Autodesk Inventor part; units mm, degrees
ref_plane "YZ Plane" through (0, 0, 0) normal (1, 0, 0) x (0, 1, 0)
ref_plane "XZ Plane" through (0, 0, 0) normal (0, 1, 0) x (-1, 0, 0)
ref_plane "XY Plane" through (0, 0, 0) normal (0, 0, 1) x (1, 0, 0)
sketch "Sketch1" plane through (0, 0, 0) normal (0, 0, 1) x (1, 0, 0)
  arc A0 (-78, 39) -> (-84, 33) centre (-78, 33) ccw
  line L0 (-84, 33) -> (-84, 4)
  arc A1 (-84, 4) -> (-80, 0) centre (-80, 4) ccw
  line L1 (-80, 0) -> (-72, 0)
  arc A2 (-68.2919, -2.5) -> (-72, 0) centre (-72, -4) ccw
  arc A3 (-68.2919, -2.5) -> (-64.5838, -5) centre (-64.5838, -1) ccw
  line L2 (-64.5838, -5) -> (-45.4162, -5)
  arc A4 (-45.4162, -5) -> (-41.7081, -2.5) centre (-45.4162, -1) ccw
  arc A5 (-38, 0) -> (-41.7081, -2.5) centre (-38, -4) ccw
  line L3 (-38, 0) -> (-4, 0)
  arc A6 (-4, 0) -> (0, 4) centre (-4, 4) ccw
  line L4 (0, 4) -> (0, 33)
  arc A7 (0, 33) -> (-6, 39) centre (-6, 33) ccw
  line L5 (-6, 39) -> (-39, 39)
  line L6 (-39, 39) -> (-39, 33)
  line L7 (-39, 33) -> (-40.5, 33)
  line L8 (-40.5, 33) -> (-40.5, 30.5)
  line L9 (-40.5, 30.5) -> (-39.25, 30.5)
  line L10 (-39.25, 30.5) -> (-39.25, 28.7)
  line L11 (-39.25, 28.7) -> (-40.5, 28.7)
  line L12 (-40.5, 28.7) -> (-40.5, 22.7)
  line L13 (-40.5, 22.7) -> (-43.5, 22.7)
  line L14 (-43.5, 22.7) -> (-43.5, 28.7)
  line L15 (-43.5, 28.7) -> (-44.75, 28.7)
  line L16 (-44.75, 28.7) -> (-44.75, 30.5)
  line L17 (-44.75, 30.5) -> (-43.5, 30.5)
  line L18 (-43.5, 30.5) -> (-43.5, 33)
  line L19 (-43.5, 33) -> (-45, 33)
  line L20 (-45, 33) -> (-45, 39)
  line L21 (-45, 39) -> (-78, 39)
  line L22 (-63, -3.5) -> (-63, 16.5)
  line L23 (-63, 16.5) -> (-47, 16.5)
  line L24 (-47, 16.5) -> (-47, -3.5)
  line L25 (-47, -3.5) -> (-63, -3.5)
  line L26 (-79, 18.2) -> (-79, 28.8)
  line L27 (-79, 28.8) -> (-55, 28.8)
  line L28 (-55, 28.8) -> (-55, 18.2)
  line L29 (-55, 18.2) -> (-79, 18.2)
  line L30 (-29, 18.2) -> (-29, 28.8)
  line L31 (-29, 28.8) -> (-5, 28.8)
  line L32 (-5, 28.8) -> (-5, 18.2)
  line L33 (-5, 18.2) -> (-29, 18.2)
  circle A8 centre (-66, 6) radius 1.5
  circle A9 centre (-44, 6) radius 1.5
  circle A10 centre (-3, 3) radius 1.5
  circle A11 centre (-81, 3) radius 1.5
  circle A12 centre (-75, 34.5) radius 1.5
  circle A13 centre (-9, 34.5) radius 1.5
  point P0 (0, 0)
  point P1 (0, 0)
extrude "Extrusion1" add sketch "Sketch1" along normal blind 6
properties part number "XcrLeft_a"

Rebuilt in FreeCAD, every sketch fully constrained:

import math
import FreeCAD as App
import Part
import Sketcher
from FreeCAD import Vector


def add_polygon(sketch, points):
    """Adds a closed chain of lines whose ends are joined by coincident constraints."""
    first, n = sketch.GeometryCount, len(points)
    for a, b in zip(points, points[1:] + points[:1]):
        sketch.addGeometry(Part.LineSegment(App.Vector(*a, 0), App.Vector(*b, 0)), False)
    for i in range(n):
        sketch.addConstraint(Sketcher.Constraint("Coincident", first + i, 2, first + (i + 1) % n, 1))

doc = App.newDocument("Part")
body = doc.addObject("PartDesign::Body", "Body")

# Sketch on XY plane
sketch1 = doc.addObject("Sketcher::SketchObject", "Sketch")
body.addObject(sketch1)
sketch1.AttachmentSupport = (doc.XY_Plane, [""])
sketch1.MapMode = "FlatFace"
sketch1.addGeometry(Part.LineSegment(Vector(-45, 39, 0), Vector(-78, 39, 0)), False)  # 0
sketch1.addGeometry(Part.ArcOfCircle(Part.Circle(Vector(-78, 33, 0), Vector(0, 0, 1), 6), math.radians(90), math.radians(180)), False)  # 1
sketch1.addGeometry(Part.LineSegment(Vector(-84, 33, 0), Vector(-84, 4, 0)), False)  # 2
sketch1.addGeometry(Part.ArcOfCircle(Part.Circle(Vector(-80, 4, 0), Vector(0, 0, 1), 4), math.radians(180), math.radians(270)), False)  # 3
sketch1.addGeometry(Part.LineSegment(Vector(-80, 0, 0), Vector(-72, 0, 0)), False)  # 4
sketch1.addGeometry(Part.ArcOfCircle(Part.Circle(Vector(-72, -4, 0), Vector(0, 0, 1), 4), math.radians(22), math.radians(90)), False)  # 5
sketch1.addGeometry(Part.ArcOfCircle(Part.Circle(Vector(-64.6, -1, 0), Vector(0, 0, 1), 4), math.radians(-158), math.radians(-90)), False)  # 6
sketch1.addGeometry(Part.LineSegment(Vector(-64.6, -5, 0), Vector(-45.4, -5, 0)), False)  # 7
sketch1.addGeometry(Part.ArcOfCircle(Part.Circle(Vector(-45.4, -1, 0), Vector(0, 0, 1), 4), math.radians(-90), math.radians(-22)), False)  # 8
sketch1.addGeometry(Part.ArcOfCircle(Part.Circle(Vector(-38, -4, 0), Vector(0, 0, 1), 4), math.radians(90), math.radians(158)), False)  # 9
sketch1.addGeometry(Part.LineSegment(Vector(-38, 0, 0), Vector(-4, 0, 0)), False)  # 10
sketch1.addGeometry(Part.ArcOfCircle(Part.Circle(Vector(-4, 4, 0), Vector(0, 0, 1), 4), math.radians(-90), math.radians(0)), False)  # 11
sketch1.addGeometry(Part.LineSegment(Vector(0, 4, 0), Vector(0, 33, 0)), False)  # 12
sketch1.addGeometry(Part.ArcOfCircle(Part.Circle(Vector(-6, 33, 0), Vector(0, 0, 1), 6), math.radians(0), math.radians(90)), False)  # 13
sketch1.addGeometry(Part.LineSegment(Vector(-6, 39, 0), Vector(-39, 39, 0)), False)  # 14
sketch1.addGeometry(Part.LineSegment(Vector(-39, 39, 0), Vector(-39, 33, 0)), False)  # 15
sketch1.addGeometry(Part.LineSegment(Vector(-39, 33, 0), Vector(-40.5, 33, 0)), False)  # 16
sketch1.addGeometry(Part.LineSegment(Vector(-40.5, 33, 0), Vector(-40.5, 30.5, 0)), False)  # 17
sketch1.addGeometry(Part.LineSegment(Vector(-40.5, 30.5, 0), Vector(-39.2, 30.5, 0)), False)  # 18
sketch1.addGeometry(Part.LineSegment(Vector(-39.2, 30.5, 0), Vector(-39.2, 28.7, 0)), False)  # 19
sketch1.addGeometry(Part.LineSegment(Vector(-39.2, 28.7, 0), Vector(-40.5, 28.7, 0)), False)  # 20
sketch1.addGeometry(Part.LineSegment(Vector(-40.5, 28.7, 0), Vector(-40.5, 22.7, 0)), False)  # 21
sketch1.addGeometry(Part.LineSegment(Vector(-40.5, 22.7, 0), Vector(-43.5, 22.7, 0)), False)  # 22
sketch1.addGeometry(Part.LineSegment(Vector(-43.5, 22.7, 0), Vector(-43.5, 28.7, 0)), False)  # 23
sketch1.addGeometry(Part.LineSegment(Vector(-43.5, 28.7, 0), Vector(-44.8, 28.7, 0)), False)  # 24
sketch1.addGeometry(Part.LineSegment(Vector(-44.8, 28.7, 0), Vector(-44.8, 30.5, 0)), False)  # 25
sketch1.addGeometry(Part.LineSegment(Vector(-44.8, 30.5, 0), Vector(-43.5, 30.5, 0)), False)  # 26
sketch1.addGeometry(Part.LineSegment(Vector(-43.5, 30.5, 0), Vector(-43.5, 33, 0)), False)  # 27
sketch1.addGeometry(Part.LineSegment(Vector(-43.5, 33, 0), Vector(-45, 33, 0)), False)  # 28
sketch1.addGeometry(Part.LineSegment(Vector(-45, 33, 0), Vector(-45, 39, 0)), False)  # 29
sketch1.addGeometry(Part.Circle(Vector(-81, 3, 0), Vector(0, 0, 1), 1.5), False)  # 30
sketch1.addGeometry(Part.Circle(Vector(-66, 6, 0), Vector(0, 0, 1), 1.5), False)  # 31
add_polygon(sketch1, [(-47, -3.5), (-63, -3.5), (-63, 16.5), (-47, 16.5)])  # lines 32-35
sketch1.addGeometry(Part.Circle(Vector(-44, 6, 0), Vector(0, 0, 1), 1.5), False)  # 36
sketch1.addGeometry(Part.Circle(Vector(-3, 3, 0), Vector(0, 0, 1), 1.5), False)  # 37
add_polygon(sketch1, [(-55, 18.2), (-79, 18.2), (-79, 28.8), (-55, 28.8)])  # lines 38-41
sketch1.addGeometry(Part.Circle(Vector(-75, 34.5, 0), Vector(0, 0, 1), 1.5), False)  # 42
add_polygon(sketch1, [(-5, 18.2), (-29, 18.2), (-29, 28.8), (-5, 28.8)])  # lines 43-46
sketch1.addGeometry(Part.Circle(Vector(-9, 34.5, 0), Vector(0, 0, 1), 1.5), False)  # 47
sketch1.addConstraint([
    Sketcher.Constraint("Tangent", 0, 2, 1, 1),
    Sketcher.Constraint("Tangent", 1, 2, 2, 1),
    Sketcher.Constraint("Tangent", 2, 2, 3, 1),
    Sketcher.Constraint("Tangent", 3, 2, 4, 1),
    Sketcher.Constraint("Tangent", 4, 2, 5, 2),
    Sketcher.Constraint("Tangent", 5, 1, 6, 1),
    Sketcher.Constraint("Tangent", 6, 2, 7, 1),
    Sketcher.Constraint("Tangent", 7, 2, 8, 1),
    Sketcher.Constraint("Tangent", 8, 2, 9, 2),
    Sketcher.Constraint("Tangent", 9, 1, 10, 1),
    Sketcher.Constraint("Tangent", 10, 2, 11, 1),
    Sketcher.Constraint("Tangent", 11, 2, 12, 1),
    Sketcher.Constraint("Tangent", 12, 2, 13, 1),
    Sketcher.Constraint("Tangent", 13, 2, 14, 1),
    Sketcher.Constraint("Coincident", 14, 2, 15, 1),
    Sketcher.Constraint("Coincident", 15, 2, 16, 1),
    Sketcher.Constraint("Coincident", 16, 2, 17, 1),
    Sketcher.Constraint("Coincident", 17, 2, 18, 1),
    Sketcher.Constraint("Coincident", 18, 2, 19, 1),
    Sketcher.Constraint("Coincident", 19, 2, 20, 1),
    Sketcher.Constraint("Coincident", 20, 2, 21, 1),
    Sketcher.Constraint("Coincident", 21, 2, 22, 1),
    Sketcher.Constraint("Coincident", 22, 2, 23, 1),
    Sketcher.Constraint("Coincident", 23, 2, 24, 1),
    Sketcher.Constraint("Coincident", 24, 2, 25, 1),
    Sketcher.Constraint("Coincident", 25, 2, 26, 1),
    Sketcher.Constraint("Coincident", 26, 2, 27, 1),
    Sketcher.Constraint("Coincident", 27, 2, 28, 1),
    Sketcher.Constraint("Coincident", 28, 2, 29, 1),
    Sketcher.Constraint("Coincident", 29, 2, 0, 1),
    Sketcher.Constraint("Horizontal", 0),
    Sketcher.Constraint("Vertical", 2),
    Sketcher.Constraint("Horizontal", 4),
    Sketcher.Constraint("Horizontal", 7),
    Sketcher.Constraint("Horizontal", 10),
    Sketcher.Constraint("Vertical", 12),
    Sketcher.Constraint("Horizontal", 14),
    Sketcher.Constraint("Vertical", 15),
    Sketcher.Constraint("Horizontal", 16),
    Sketcher.Constraint("Vertical", 17),
    Sketcher.Constraint("Horizontal", 18),
    Sketcher.Constraint("Vertical", 19),
    Sketcher.Constraint("Horizontal", 20),
    Sketcher.Constraint("Vertical", 21),
    Sketcher.Constraint("Horizontal", 22),
    Sketcher.Constraint("Vertical", 23),
    Sketcher.Constraint("Horizontal", 24),
    Sketcher.Constraint("Vertical", 25),
    Sketcher.Constraint("Horizontal", 26),
    Sketcher.Constraint("Vertical", 27),
    Sketcher.Constraint("Horizontal", 28),
    Sketcher.Constraint("Vertical", 29),
    Sketcher.Constraint("Horizontal", 32),
    Sketcher.Constraint("Vertical", 33),
    Sketcher.Constraint("Horizontal", 34),
    Sketcher.Constraint("Vertical", 35),
    Sketcher.Constraint("Horizontal", 38),
    Sketcher.Constraint("Vertical", 39),
    Sketcher.Constraint("Horizontal", 40),
    Sketcher.Constraint("Vertical", 41),
    Sketcher.Constraint("Horizontal", 43),
    Sketcher.Constraint("Vertical", 44),
    Sketcher.Constraint("Horizontal", 45),
    Sketcher.Constraint("Vertical", 46),
    Sketcher.Constraint("Equal", 3, 5),
    Sketcher.Constraint("Equal", 5, 6),
    Sketcher.Constraint("Equal", 6, 8),
    Sketcher.Constraint("Equal", 8, 9),
    Sketcher.Constraint("Equal", 9, 11),
    Sketcher.Constraint("Equal", 1, 13),
    Sketcher.Constraint("Equal", 30, 31),
    Sketcher.Constraint("Equal", 31, 36),
    Sketcher.Constraint("Equal", 36, 37),
    Sketcher.Constraint("Equal", 37, 42),
    Sketcher.Constraint("Equal", 42, 47),
    Sketcher.Constraint("PointOnObject", 3, 2, -1),
    Sketcher.Constraint("PointOnObject", 9, 1, -1),
    Sketcher.Constraint("PointOnObject", 11, 2, -2),
    Sketcher.Constraint("Horizontal", 1, 3, 13, 3),
    Sketcher.Constraint("Horizontal", 31, 3, 36, 3),
    Sketcher.Constraint("Horizontal", 30, 3, 37, 3),
    Sketcher.Constraint("Horizontal", 42, 3, 47, 3),
    Sketcher.Constraint("Horizontal", 12, 2, 15, 2),
    Sketcher.Constraint("Horizontal", 20, 2, 23, 2),
    Sketcher.Constraint("Horizontal", 18, 2, 25, 2),
    Sketcher.Constraint("Horizontal", 16, 2, 27, 2),
    Sketcher.Constraint("Horizontal", 41, 2, 43, 2),
    Sketcher.Constraint("Horizontal", 40, 2, 44, 2),
    Sketcher.Constraint("Vertical", 17, 2, 20, 2),
    Sketcher.Constraint("Vertical", 23, 2, 26, 2),
    Sketcher.Constraint("Equal", 0, 14),
    Sketcher.Constraint("Equal", 20, 24),
    Sketcher.Constraint("Equal", 16, 28),
    Sketcher.Constraint("Equal", 40, 43),
    Sketcher.Constraint("Equal", 15, 21),
    Sketcher.Constraint("Diameter", 30, 3.0),
    Sketcher.Constraint("Radius", 1, 6.0),
    Sketcher.Constraint("Radius", 3, 4.0),
    Sketcher.Constraint("DistanceX", 0, 2, 0, 1, 33.0),
    Sketcher.Constraint("DistanceX", 4, 1, 4, 2, 8.0),
    Sketcher.Constraint("DistanceX", 10, 1, 10, 2, 34.0),
    Sketcher.Constraint("DistanceX", 22, 2, 22, 1, 3.0),
    Sketcher.Constraint("DistanceX", 32, 2, 32, 1, 16.0),
    Sketcher.Constraint("DistanceX", 38, 2, 38, 1, 24.0),
    Sketcher.Constraint("DistanceY", 2, 2, 2, 1, 29.0),
    Sketcher.Constraint("DistanceY", 33, 1, 33, 2, 20.0),
    Sketcher.Constraint("DistanceX", 16, 2, 16, 1, 1.5),
    Sketcher.Constraint("DistanceY", 17, 2, 17, 1, 2.5),
    Sketcher.Constraint("DistanceY", 19, 2, 19, 1, 1.8),
    Sketcher.Constraint("DistanceY", 39, 1, 39, 2, 10.6),
    Sketcher.Constraint("DistanceY", 6, 3, -1, 1, 1.0),
    Sketcher.Constraint("DistanceX", 30, 3, -1, 1, 81.0),
    Sketcher.Constraint("DistanceY", -1, 1, 30, 3, 3.0),
    Sketcher.Constraint("DistanceX", 31, 3, -1, 1, 66.0),
    Sketcher.Constraint("DistanceY", -1, 1, 31, 3, 6.0),
    Sketcher.Constraint("DistanceX", 36, 3, -1, 1, 44.0),
    Sketcher.Constraint("DistanceX", 37, 3, -1, 1, 3.0),
    Sketcher.Constraint("DistanceX", 42, 3, -1, 1, 75.0),
    Sketcher.Constraint("DistanceX", 47, 3, -1, 1, 9.0),
    Sketcher.Constraint("DistanceX", 32, 2, -1, 1, 63.0),
    Sketcher.Constraint("DistanceX", 38, 2, -1, 1, 79.0),
    Sketcher.Constraint("DistanceX", 43, 2, -1, 1, 29.0),
    Sketcher.Constraint("DistanceY", 32, 2, 5, 1, 1.0),
    Sketcher.Constraint("DistanceX", 18, 1, 18, 2, 1.25),
    Sketcher.Constraint("DistanceY", -1, 1, 42, 3, 34.5),
    Sketcher.Constraint("DistanceY", -1, 1, 38, 2, 18.2),
])
pad1 = doc.addObject("PartDesign::Pad", "Pad")
body.addObject(pad1)
pad1.Profile = sketch1
pad1.Length = 6

doc.recompute()
